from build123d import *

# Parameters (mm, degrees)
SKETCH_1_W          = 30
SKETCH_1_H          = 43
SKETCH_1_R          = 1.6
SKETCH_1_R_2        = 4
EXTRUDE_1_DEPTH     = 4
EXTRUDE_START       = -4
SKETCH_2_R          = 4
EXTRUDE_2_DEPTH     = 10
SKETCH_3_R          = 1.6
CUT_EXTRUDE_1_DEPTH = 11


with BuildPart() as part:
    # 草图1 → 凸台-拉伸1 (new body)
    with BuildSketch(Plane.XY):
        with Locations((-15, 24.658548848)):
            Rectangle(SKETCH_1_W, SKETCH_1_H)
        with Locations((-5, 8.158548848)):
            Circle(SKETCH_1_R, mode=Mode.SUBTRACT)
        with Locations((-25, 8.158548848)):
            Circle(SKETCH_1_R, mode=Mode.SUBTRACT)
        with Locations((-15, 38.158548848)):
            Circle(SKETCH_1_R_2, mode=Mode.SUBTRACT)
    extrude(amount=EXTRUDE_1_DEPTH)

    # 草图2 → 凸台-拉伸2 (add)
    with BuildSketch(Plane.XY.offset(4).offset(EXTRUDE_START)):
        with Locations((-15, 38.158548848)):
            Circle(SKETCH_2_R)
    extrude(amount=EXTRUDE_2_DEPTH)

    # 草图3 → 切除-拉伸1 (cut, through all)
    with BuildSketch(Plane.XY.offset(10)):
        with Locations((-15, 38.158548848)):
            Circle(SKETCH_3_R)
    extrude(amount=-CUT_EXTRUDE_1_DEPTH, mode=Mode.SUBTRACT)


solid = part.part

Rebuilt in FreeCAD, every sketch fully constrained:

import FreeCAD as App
import Part
import Sketcher
Q = App.Units.Quantity

doc = App.newDocument("Part")
body = doc.addObject("PartDesign::Body", "Body")

sketch1 = body.newObject("Sketcher::SketchObject", "Sketch")
sketch1.AttachmentSupport = (doc.getObject("XY_Plane"), [""])
sketch1.MapMode = "FlatFace"
sketch1.addGeometry([
    Part.LineSegment(App.Vector(-30, 46.2, 0), App.Vector(-30, 3.2, 0)),
    Part.LineSegment(App.Vector(-30, 3.2, 0), App.Vector(0, 3.2, 0)),
    Part.LineSegment(App.Vector(0, 3.2, 0), App.Vector(0, 46.2, 0)),
    Part.LineSegment(App.Vector(0, 46.2, 0), App.Vector(-30, 46.2, 0)),
    Part.Circle(App.Vector(-25, 8.2, 0), App.Vector(0, 0, 1), 1.6),
    Part.Circle(App.Vector(-5, 8.2, 0), App.Vector(0, 0, 1), 1.6),
    Part.Circle(App.Vector(-15, 38.2, 0), App.Vector(0, 0, 1), 4),
], False)
sketch1.addConstraint([
    Sketcher.Constraint("Coincident", 0, 2, 1, 1),
    Sketcher.Constraint("Coincident", 1, 2, 2, 1),
    Sketcher.Constraint("Coincident", 2, 2, 3, 1),
    Sketcher.Constraint("Coincident", 3, 2, 0, 1),
    Sketcher.Constraint("Vertical", 0),
    Sketcher.Constraint("Horizontal", 1),
    Sketcher.Constraint("Vertical", 2),
    Sketcher.Constraint("Horizontal", 3),
    Sketcher.Constraint("Equal", 4, 5),
    Sketcher.Constraint("PointOnObject", 1, 2, -2),
    Sketcher.Constraint("Horizontal", 4, 3, 5, 3),
    Sketcher.Constraint("Diameter", 6, Q("8 mm")),
    Sketcher.Constraint("Diameter", 4, Q("3.2 mm")),
    Sketcher.Constraint("DistanceX", 1, 1, 1, 2, Q("30 mm")),
    Sketcher.Constraint("DistanceY", 0, 2, 0, 1, Q("43 mm")),
    Sketcher.Constraint("DistanceX", 4, 3, -1, 1, Q("25 mm")),
    Sketcher.Constraint("DistanceX", 5, 3, -1, 1, Q("5 mm")),
    Sketcher.Constraint("DistanceX", 6, 3, -1, 1, Q("15 mm")),
    Sketcher.Constraint("DistanceY", 4, 3, 6, 3, Q("30 mm")),
    Sketcher.Constraint("DistanceY", 0, 2, 4, 3, Q("5 mm")),
    Sketcher.Constraint("DistanceY", -1, 1, 4, 3, Q("8.158549 mm")),
])
pad1 = body.newObject("PartDesign::Pad", "Pad")
pad1.Profile = sketch1
pad1.Length = 4

sketch2 = body.newObject("Sketcher::SketchObject", "Sketch001")
sketch2.AttachmentSupport = (doc.getObject("XY_Plane"), [""])
sketch2.MapMode = "FlatFace"
sketch2.addGeometry(Part.Circle(App.Vector(-15, 38.2, 0), App.Vector(0, 0, 1), 4), False)
sketch2.addConstraint([
    Sketcher.Constraint("Diameter", 0, Q("8 mm")),
    Sketcher.Constraint("DistanceX", 0, 3, -1, 1, Q("15 mm")),
    Sketcher.Constraint("DistanceY", -1, 1, 0, 3, Q("38.158549 mm")),
])
pad2 = body.newObject("PartDesign::Pad", "Pad001")
pad2.Profile = sketch2
pad2.Length = 10

sketch3 = body.newObject("Sketcher::SketchObject", "Sketch002")
sketch3.AttachmentSupport = (doc.getObject("XY_Plane"), [""])
sketch3.MapMode = "FlatFace"
sketch3.AttachmentOffset = App.Placement(App.Vector(0, 0, 10), App.Rotation())
sketch3.addGeometry(Part.Circle(App.Vector(-15, 38.2, 0), App.Vector(0, 0, 1), 1.6), False)
sketch3.addConstraint([
    Sketcher.Constraint("Diameter", 0, Q("3.2 mm")),
    Sketcher.Constraint("DistanceX", 0, 3, -1, 1, Q("15 mm")),
    Sketcher.Constraint("DistanceY", -1, 1, 0, 3, Q("38.158549 mm")),
])
pocket1 = body.newObject("PartDesign::Pocket", "Pocket")
pocket1.Profile = sketch3
pocket1.Type = "ThroughAll"

doc.recompute()
